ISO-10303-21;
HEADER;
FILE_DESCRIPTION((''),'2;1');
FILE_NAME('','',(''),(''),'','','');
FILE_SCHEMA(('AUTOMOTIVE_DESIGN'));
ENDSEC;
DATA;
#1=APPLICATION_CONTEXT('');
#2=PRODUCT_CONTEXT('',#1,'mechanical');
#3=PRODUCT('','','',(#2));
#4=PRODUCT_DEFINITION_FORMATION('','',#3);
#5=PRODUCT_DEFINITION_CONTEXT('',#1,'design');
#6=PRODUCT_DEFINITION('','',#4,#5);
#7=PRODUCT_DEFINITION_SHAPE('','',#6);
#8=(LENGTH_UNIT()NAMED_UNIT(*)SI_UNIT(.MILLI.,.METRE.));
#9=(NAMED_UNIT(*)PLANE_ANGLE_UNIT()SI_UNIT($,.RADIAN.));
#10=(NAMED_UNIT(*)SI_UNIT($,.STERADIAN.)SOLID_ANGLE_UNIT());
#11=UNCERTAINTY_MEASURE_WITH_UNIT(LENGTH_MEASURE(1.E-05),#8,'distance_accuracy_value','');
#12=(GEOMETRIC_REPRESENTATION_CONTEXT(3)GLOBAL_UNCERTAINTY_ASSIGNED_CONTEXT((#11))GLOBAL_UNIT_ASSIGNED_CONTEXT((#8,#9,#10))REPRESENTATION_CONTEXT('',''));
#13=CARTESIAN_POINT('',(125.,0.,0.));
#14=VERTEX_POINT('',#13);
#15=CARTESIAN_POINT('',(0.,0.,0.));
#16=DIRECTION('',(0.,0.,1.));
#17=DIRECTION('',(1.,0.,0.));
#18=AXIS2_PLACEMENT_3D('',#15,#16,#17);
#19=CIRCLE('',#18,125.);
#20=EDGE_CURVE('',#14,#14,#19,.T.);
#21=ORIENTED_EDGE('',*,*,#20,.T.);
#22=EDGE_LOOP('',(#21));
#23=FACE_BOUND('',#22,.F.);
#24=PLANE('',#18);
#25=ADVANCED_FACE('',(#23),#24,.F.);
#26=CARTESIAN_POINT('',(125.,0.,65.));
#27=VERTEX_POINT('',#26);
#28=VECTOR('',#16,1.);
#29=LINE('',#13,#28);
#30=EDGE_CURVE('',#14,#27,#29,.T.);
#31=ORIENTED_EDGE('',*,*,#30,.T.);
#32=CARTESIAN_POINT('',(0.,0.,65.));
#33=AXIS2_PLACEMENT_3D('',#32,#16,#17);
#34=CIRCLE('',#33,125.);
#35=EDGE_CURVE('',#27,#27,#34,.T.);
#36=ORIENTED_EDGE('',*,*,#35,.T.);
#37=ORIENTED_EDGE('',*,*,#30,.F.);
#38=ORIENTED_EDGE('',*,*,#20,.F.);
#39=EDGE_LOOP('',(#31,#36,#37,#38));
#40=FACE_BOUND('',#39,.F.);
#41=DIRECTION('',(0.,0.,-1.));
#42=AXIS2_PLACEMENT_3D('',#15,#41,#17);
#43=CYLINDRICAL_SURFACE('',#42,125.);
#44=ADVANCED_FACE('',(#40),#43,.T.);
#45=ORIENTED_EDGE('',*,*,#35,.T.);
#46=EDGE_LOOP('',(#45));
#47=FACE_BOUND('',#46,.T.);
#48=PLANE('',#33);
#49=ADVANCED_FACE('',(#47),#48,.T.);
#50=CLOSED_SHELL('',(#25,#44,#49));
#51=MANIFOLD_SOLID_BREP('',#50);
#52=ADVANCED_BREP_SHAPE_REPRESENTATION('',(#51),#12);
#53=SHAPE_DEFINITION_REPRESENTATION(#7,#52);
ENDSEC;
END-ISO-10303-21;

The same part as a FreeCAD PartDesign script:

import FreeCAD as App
import Part
import Sketcher

V = App.Vector

doc = App.newDocument("Part")
params = doc.addObject("Spreadsheet::Sheet", "Params")
for row, (alias, value) in enumerate([
    ("sketch1_diameter", "250 mm"),
    ("pad1_length", "65 mm"),
], start=1):
    params.set(f"A{row}", alias)
    params.set(f"B{row}", "=" + value)
    params.setAlias(f"B{row}", alias)

body = doc.addObject("PartDesign::Body", "Body")

# Sketch on XY plane
sketch1 = body.newObject("Sketcher::SketchObject", "Sketch")
sketch1.AttachmentSupport = (doc.getObject("XY_Plane"), [""])
sketch1.MapMode = "FlatFace"
sketch1.addGeometry(Part.Circle(V(0, 0, 0), V(0, 0, 1), 125), False)
sketch1.addConstraint([
    Sketcher.Constraint("Coincident", 0, 3, -1, 1),
    Sketcher.Constraint("Diameter", 0, 250.0),
])
sketch1.setExpression("Constraints[1]", "Params.sketch1_diameter")
pad1 = body.newObject("PartDesign::Pad", "Pad")
pad1.Profile = sketch1
pad1.setExpression("Length", "Params.pad1_length")

doc.recompute()
